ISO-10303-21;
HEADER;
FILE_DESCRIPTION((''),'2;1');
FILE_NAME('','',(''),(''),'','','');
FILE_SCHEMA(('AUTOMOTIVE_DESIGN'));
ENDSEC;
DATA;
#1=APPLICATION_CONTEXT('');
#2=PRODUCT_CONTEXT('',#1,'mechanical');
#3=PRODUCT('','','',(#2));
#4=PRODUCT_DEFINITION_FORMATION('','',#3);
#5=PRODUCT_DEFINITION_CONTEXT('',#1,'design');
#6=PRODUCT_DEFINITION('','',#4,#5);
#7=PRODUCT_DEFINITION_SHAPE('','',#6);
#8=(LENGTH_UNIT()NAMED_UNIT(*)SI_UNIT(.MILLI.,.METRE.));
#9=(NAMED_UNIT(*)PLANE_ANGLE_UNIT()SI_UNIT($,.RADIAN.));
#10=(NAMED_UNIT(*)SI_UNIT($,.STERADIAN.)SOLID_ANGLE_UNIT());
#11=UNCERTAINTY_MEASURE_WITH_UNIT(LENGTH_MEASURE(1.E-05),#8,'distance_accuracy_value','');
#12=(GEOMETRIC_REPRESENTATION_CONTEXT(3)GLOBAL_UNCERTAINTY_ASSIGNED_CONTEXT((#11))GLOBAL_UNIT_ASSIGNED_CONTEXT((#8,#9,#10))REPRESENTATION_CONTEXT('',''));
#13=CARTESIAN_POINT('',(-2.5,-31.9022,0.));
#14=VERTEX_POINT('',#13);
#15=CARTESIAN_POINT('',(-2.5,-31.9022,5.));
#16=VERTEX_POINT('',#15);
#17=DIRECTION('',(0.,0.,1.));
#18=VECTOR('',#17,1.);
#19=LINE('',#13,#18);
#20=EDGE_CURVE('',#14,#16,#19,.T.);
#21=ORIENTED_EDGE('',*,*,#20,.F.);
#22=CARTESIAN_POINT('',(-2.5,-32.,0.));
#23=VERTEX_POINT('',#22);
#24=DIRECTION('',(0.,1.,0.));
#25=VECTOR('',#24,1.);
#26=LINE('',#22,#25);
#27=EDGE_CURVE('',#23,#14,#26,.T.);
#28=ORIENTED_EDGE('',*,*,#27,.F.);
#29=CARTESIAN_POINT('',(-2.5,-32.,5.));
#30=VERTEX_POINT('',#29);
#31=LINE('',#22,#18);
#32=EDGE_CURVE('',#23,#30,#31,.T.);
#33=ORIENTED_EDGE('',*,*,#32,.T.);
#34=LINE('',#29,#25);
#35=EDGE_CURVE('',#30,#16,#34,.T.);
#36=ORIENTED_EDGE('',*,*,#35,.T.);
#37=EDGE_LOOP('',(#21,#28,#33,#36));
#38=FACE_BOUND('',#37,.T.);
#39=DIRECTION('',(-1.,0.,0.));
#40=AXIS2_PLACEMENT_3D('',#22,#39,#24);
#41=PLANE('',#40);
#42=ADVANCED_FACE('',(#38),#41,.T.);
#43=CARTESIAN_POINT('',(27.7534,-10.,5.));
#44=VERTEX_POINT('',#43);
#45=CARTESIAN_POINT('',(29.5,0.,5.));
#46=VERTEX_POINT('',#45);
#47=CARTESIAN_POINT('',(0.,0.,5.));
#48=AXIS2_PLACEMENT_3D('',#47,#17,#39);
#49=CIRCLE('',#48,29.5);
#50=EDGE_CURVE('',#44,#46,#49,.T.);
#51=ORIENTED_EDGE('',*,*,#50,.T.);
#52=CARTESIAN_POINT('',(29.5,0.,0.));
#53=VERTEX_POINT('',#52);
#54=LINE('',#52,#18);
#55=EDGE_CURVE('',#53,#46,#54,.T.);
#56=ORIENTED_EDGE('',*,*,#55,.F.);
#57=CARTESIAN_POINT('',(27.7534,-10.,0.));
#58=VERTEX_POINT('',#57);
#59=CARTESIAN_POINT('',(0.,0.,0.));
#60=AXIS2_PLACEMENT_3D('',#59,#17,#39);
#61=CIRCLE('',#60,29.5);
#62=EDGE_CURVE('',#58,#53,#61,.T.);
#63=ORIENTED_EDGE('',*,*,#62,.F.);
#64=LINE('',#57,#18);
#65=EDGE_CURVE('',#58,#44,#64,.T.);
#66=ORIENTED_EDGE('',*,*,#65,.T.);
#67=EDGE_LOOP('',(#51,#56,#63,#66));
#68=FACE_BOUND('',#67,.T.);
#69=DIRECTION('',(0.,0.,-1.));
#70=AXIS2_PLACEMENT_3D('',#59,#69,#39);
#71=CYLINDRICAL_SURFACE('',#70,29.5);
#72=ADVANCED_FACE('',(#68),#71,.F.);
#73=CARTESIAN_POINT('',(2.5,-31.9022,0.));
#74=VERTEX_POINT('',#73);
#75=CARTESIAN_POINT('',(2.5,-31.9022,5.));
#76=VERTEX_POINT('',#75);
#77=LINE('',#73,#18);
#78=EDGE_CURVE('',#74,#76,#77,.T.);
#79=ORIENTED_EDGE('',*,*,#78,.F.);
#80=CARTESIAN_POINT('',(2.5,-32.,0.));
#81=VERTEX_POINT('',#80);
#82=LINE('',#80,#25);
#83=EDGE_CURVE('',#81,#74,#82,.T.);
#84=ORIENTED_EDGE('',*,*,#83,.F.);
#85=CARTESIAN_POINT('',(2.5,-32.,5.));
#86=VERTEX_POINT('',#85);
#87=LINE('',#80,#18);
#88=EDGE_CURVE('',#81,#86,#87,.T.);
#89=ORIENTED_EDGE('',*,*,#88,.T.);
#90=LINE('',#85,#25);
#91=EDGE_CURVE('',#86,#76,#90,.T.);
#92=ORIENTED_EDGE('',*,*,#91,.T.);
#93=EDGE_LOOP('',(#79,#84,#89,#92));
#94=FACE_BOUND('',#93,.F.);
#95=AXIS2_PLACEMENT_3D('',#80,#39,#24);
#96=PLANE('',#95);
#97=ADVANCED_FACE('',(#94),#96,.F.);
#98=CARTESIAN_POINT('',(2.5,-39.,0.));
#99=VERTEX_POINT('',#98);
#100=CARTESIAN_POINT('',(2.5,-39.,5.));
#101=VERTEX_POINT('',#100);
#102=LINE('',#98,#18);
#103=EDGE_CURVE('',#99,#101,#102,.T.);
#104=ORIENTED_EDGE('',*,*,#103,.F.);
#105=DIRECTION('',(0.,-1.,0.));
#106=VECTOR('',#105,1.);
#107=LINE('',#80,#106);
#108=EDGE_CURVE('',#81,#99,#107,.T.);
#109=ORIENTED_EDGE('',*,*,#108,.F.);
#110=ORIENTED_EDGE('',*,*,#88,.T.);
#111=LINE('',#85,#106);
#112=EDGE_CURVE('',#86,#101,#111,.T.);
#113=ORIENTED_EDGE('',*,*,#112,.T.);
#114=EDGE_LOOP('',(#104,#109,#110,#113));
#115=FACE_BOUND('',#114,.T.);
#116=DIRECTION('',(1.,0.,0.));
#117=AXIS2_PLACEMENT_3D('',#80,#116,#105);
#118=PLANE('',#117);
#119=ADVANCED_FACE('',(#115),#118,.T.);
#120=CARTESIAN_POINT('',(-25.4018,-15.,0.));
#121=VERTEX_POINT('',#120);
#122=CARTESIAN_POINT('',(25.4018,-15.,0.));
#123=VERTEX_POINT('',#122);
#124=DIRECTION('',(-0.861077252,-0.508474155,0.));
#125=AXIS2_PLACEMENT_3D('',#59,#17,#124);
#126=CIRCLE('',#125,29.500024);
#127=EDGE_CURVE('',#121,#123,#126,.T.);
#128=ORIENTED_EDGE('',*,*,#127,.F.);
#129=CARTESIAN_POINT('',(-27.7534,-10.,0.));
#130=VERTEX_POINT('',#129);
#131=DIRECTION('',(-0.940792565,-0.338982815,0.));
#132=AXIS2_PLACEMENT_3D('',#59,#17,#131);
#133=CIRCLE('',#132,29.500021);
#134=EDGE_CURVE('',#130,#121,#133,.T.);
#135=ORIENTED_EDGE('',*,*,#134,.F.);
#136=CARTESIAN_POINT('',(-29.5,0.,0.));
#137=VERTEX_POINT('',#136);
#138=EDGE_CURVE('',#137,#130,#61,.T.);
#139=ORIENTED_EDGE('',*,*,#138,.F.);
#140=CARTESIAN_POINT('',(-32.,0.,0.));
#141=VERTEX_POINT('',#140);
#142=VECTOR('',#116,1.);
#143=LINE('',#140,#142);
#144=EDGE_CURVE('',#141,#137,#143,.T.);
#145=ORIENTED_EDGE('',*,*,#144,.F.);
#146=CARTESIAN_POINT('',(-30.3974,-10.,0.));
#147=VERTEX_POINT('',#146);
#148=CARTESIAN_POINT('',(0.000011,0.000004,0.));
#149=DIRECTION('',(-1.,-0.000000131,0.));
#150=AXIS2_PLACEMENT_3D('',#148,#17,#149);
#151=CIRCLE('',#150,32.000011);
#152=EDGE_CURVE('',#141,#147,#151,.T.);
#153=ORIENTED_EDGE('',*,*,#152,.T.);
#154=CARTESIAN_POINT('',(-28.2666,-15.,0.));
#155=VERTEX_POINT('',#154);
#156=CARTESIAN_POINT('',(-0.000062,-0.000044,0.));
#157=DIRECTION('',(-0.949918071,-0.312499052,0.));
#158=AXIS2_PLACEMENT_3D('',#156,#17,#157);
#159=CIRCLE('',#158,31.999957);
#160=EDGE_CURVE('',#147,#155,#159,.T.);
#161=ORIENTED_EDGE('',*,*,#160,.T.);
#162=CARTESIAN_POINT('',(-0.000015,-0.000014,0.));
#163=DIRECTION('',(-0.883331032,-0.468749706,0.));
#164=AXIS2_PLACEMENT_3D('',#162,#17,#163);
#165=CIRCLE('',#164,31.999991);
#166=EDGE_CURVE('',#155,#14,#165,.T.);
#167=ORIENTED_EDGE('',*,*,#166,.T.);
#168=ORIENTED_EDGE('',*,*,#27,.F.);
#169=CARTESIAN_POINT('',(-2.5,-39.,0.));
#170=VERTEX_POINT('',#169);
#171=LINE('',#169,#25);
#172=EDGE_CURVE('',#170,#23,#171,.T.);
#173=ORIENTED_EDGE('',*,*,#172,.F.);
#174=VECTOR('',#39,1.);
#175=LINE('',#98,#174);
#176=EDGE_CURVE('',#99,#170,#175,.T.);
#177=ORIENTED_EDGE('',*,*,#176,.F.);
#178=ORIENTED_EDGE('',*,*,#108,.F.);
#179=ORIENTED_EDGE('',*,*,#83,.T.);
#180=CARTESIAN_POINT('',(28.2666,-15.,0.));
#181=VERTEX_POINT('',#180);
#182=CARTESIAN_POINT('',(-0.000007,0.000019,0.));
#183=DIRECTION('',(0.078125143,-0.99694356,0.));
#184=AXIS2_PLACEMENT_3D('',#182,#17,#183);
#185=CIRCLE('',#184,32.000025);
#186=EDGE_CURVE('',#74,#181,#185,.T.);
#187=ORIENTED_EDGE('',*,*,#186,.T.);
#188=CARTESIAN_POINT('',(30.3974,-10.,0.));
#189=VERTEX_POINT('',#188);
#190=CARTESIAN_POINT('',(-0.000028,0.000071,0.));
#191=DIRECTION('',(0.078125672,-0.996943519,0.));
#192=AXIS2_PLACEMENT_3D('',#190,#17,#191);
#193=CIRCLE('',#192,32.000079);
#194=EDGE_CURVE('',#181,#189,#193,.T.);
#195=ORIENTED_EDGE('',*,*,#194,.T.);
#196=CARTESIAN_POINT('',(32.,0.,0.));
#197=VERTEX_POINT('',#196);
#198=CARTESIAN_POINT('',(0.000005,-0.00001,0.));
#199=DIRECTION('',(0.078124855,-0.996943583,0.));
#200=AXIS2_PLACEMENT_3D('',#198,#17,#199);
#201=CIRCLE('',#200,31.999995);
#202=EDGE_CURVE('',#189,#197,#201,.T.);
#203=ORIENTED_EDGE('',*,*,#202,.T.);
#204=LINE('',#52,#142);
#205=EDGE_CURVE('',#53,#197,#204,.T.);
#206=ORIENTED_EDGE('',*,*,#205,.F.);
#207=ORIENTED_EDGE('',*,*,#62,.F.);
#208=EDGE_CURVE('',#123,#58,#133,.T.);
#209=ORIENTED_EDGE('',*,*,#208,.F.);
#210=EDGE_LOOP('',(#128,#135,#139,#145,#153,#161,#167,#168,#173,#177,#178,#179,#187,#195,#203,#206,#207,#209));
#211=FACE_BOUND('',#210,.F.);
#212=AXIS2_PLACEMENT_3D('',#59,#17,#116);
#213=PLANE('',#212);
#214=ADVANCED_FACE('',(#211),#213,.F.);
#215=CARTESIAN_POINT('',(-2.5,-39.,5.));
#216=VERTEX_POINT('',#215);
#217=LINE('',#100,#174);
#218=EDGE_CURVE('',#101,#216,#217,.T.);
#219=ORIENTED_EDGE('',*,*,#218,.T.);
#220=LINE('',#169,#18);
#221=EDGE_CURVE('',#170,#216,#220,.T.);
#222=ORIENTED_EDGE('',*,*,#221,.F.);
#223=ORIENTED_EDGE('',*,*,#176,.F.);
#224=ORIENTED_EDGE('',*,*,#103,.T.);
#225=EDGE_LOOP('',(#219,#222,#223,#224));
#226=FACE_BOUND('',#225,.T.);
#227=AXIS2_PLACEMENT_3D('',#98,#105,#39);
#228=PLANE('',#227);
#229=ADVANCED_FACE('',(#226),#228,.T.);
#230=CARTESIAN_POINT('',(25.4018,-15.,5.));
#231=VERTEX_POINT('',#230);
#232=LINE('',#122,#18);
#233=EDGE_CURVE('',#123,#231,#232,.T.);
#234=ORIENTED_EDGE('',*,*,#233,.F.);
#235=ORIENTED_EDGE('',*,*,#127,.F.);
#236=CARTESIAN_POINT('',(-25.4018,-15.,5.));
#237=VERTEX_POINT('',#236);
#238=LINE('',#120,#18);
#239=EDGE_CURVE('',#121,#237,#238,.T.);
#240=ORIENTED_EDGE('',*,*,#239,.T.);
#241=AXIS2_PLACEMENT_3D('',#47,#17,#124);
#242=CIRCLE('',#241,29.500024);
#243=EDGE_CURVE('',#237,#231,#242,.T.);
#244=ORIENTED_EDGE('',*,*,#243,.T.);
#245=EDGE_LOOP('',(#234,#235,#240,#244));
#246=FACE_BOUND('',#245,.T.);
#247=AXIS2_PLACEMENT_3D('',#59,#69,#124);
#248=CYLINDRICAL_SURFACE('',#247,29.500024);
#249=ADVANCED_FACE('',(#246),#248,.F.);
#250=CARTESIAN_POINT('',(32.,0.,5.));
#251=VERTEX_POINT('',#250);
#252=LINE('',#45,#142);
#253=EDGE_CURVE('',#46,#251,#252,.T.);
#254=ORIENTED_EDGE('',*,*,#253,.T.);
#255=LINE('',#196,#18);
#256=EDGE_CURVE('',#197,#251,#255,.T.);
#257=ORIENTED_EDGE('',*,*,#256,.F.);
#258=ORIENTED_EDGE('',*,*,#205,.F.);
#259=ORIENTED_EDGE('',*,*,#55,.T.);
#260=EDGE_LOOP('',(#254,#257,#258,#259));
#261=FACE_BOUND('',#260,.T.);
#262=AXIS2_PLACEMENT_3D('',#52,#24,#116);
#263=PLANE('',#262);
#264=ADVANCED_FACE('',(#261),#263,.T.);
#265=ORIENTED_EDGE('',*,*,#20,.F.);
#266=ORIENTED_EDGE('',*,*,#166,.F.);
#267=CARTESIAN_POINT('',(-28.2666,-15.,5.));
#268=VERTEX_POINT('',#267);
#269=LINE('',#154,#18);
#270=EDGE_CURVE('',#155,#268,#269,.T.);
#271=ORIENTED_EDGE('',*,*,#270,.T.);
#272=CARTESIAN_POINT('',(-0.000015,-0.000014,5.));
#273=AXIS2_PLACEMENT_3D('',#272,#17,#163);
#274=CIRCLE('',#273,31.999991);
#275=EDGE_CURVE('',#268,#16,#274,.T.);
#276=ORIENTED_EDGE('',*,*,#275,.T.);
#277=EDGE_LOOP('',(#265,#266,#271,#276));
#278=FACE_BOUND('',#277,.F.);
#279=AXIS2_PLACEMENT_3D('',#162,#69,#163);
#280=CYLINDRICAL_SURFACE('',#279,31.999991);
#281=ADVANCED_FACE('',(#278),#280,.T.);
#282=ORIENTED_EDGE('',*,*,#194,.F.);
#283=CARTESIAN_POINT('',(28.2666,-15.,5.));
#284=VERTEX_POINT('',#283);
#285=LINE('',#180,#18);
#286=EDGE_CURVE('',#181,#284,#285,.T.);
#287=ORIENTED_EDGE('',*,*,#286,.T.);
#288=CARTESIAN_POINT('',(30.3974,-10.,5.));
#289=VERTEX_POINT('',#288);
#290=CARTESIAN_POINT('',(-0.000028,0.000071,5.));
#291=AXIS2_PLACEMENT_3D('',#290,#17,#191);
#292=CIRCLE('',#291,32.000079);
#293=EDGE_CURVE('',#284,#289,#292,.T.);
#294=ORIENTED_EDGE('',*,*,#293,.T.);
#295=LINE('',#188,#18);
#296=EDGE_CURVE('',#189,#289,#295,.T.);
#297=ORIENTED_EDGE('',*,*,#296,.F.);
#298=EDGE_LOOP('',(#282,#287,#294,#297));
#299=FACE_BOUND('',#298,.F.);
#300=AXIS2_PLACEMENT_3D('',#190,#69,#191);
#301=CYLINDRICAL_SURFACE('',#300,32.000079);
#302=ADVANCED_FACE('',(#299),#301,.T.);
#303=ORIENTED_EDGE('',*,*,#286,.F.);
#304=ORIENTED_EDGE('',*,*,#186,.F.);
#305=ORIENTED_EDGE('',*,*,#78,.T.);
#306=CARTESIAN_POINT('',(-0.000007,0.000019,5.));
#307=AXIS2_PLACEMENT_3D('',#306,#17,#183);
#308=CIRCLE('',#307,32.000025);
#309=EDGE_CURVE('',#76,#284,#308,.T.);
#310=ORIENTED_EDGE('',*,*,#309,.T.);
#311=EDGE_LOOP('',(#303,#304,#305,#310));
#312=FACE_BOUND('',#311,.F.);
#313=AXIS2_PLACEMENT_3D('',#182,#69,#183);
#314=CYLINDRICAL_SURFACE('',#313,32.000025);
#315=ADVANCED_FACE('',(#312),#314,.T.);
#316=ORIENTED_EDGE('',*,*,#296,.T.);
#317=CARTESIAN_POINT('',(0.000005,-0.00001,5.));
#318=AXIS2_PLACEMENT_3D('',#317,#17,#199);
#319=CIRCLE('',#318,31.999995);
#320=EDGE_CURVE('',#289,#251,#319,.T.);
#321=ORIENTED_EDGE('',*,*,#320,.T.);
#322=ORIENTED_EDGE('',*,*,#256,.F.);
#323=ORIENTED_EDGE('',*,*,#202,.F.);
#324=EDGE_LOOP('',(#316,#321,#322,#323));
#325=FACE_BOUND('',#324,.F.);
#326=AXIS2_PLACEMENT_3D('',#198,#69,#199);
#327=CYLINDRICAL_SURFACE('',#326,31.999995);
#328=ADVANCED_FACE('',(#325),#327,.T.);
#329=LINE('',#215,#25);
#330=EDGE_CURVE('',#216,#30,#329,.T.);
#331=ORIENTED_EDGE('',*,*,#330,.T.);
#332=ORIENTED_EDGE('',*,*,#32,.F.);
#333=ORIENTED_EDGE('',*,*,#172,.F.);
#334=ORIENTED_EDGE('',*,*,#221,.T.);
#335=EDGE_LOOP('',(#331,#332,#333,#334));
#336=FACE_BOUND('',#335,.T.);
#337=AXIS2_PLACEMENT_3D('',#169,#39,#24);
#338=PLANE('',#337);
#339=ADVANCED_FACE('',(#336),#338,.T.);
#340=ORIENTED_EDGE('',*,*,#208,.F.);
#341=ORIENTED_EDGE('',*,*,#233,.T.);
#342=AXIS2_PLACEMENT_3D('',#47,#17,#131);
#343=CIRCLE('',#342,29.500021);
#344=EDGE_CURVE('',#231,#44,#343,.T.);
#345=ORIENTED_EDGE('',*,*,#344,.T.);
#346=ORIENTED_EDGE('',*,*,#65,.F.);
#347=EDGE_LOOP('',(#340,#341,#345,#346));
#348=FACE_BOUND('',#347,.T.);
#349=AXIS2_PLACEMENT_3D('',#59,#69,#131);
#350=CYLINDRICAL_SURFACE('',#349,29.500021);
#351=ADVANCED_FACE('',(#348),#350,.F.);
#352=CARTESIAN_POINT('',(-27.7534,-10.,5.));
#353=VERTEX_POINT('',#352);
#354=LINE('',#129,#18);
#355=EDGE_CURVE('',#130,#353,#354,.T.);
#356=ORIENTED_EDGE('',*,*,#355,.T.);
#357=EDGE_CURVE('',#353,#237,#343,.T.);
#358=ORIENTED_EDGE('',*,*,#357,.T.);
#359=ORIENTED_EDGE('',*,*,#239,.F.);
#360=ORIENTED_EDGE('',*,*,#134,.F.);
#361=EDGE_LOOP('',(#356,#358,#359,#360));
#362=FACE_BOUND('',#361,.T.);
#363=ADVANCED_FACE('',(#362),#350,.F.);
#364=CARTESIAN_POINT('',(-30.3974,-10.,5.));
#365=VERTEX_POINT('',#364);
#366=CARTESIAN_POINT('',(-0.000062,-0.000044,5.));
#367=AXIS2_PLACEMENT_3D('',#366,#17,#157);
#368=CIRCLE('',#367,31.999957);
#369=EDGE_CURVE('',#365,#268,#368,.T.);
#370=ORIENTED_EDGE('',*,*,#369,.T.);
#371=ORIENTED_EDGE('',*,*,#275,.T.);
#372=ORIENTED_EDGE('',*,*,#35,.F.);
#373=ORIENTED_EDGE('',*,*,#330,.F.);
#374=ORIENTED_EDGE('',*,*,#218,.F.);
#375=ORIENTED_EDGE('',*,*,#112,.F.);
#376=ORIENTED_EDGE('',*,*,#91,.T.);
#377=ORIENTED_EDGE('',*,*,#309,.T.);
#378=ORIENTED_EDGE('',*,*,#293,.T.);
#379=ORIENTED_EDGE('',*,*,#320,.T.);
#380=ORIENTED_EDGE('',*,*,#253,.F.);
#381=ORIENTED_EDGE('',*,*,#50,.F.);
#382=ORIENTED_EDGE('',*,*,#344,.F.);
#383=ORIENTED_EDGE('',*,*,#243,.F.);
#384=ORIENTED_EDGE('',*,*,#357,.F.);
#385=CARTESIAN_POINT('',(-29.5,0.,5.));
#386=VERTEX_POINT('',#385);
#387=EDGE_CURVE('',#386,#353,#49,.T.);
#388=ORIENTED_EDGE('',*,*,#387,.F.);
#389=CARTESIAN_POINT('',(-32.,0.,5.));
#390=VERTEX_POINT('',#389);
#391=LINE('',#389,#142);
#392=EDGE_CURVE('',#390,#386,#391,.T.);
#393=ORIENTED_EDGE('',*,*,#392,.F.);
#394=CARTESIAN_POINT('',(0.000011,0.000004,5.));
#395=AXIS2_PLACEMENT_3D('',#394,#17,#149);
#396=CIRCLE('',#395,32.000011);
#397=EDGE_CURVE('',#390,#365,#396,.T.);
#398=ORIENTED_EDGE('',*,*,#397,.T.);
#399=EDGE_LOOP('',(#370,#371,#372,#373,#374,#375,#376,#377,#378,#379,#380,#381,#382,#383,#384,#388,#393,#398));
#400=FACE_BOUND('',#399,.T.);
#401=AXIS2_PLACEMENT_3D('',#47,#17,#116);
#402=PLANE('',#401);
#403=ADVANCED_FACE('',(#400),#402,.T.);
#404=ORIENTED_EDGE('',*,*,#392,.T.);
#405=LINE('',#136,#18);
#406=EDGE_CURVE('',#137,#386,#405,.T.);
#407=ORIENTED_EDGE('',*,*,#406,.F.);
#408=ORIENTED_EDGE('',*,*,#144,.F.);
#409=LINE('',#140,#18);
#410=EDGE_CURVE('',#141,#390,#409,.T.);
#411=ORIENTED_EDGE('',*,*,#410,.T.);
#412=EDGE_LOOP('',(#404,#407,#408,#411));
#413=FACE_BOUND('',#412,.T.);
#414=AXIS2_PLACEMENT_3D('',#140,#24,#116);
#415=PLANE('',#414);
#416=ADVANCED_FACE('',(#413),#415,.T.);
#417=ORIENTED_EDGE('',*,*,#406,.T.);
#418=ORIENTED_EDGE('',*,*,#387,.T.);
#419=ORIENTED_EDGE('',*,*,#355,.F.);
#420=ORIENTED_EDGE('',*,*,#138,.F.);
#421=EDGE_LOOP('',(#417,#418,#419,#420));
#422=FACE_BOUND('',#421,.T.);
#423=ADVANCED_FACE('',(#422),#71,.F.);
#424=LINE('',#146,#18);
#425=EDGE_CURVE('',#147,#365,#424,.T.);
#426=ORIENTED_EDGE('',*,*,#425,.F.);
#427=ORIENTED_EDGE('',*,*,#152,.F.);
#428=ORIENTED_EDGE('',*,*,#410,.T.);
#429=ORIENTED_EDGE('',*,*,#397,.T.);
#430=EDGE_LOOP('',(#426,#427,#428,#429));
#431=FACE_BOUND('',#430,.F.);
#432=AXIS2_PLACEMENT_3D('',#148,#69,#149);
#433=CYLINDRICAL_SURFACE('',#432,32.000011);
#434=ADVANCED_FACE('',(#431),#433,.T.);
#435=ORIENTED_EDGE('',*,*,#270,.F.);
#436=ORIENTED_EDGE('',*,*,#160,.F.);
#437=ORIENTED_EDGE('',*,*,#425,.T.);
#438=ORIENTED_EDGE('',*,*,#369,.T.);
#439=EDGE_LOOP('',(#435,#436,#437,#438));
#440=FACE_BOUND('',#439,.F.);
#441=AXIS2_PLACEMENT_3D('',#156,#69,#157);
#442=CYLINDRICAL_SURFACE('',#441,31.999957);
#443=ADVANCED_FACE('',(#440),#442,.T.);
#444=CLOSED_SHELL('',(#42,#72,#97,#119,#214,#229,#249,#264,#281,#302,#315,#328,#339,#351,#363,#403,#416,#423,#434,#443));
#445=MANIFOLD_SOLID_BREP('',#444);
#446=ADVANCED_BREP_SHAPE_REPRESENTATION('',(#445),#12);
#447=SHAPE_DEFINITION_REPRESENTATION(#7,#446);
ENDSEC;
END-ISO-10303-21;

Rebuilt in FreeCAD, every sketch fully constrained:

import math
import FreeCAD as App
import Part
import Sketcher

V = App.Vector

doc = App.newDocument("Part")
body = doc.addObject("PartDesign::Body", "Body")

sketch1 = body.newObject("Sketcher::SketchObject", "Sketch")
sketch1.AttachmentSupport = (doc.getObject("XY_Plane"), [""])
sketch1.MapMode = "FlatFace"
sketch1.addGeometry(Part.ArcOfCircle(Part.Circle(V(0, 0, 0), V(0, 0, 1), 29.5), math.radians(180), math.radians(360)), False)
sketch1.addGeometry(Part.LineSegment(V(-29.5, 0, 0), V(-32, 0, 0)), False)
sketch1.addGeometry(Part.ArcOfCircle(Part.Circle(V(0, 0, 0), V(0, 0, 1), 32), math.radians(180), math.radians(198.21)), False)
sketch1.addGeometry(Part.ArcOfCircle(Part.Circle(V(0, 0, 0), V(0, 0, 1), 32), math.radians(-161.79), math.radians(-152.05)), False)
sketch1.addGeometry(Part.ArcOfCircle(Part.Circle(V(0, 0, 0), V(0, 0, 1), 32), math.radians(-152), math.radians(-94)), False)
sketch1.addGeometry(Part.LineSegment(V(-2.5, -31.9, 0), V(-2.5, -39, 0)), False)
sketch1.addGeometry(Part.LineSegment(V(-2.5, -39, 0), V(2.5, -39, 0)), False)
sketch1.addGeometry(Part.LineSegment(V(2.5, -39, 0), V(2.5, -31.9, 0)), False)
sketch1.addGeometry(Part.ArcOfCircle(Part.Circle(V(0, 0, 0), V(0, 0, 1), 32), math.radians(-86), math.radians(-28)), False)
sketch1.addGeometry(Part.ArcOfCircle(Part.Circle(V(0, 0, 0), V(0, 0, 1), 32), math.radians(-27.95), math.radians(-18.21)), False)
sketch1.addGeometry(Part.ArcOfCircle(Part.Circle(V(0, 0, 0), V(0, 0, 1), 32), math.radians(-18.21), math.radians(0)), False)
sketch1.addGeometry(Part.LineSegment(V(32, 0, 0), V(29.5, 0, 0)), False)
sketch1.addConstraint(Sketcher.Constraint("Coincident", 0, 1, 1, 1))
sketch1.addConstraint(Sketcher.Constraint("Coincident", 1, 2, 2, 1))
sketch1.addConstraint(Sketcher.Constraint("Tangent", 2, 2, 3, 1))
sketch1.addConstraint(Sketcher.Constraint("Tangent", 3, 2, 4, 1))
sketch1.addConstraint(Sketcher.Constraint("Coincident", 4, 2, 5, 1))
sketch1.addConstraint(Sketcher.Constraint("Coincident", 5, 2, 6, 1))
sketch1.addConstraint(Sketcher.Constraint("Coincident", 6, 2, 7, 1))
sketch1.addConstraint(Sketcher.Constraint("Coincident", 7, 2, 8, 1))
sketch1.addConstraint(Sketcher.Constraint("Tangent", 8, 2, 9, 1))
sketch1.addConstraint(Sketcher.Constraint("Tangent", 9, 2, 10, 1))
sketch1.addConstraint(Sketcher.Constraint("Coincident", 10, 2, 11, 1))
sketch1.addConstraint(Sketcher.Constraint("Coincident", 11, 2, 0, 2))
sketch1.addConstraint(Sketcher.Constraint("Horizontal", 1))
sketch1.addConstraint(Sketcher.Constraint("Vertical", 5))
sketch1.addConstraint(Sketcher.Constraint("Horizontal", 6))
sketch1.addConstraint(Sketcher.Constraint("Vertical", 7))
sketch1.addConstraint(Sketcher.Constraint("Horizontal", 11))
sketch1.addConstraint(Sketcher.Constraint("Coincident", 0, 3, -1, 1))
sketch1.addConstraint(Sketcher.Constraint("Coincident", 2, 3, -1, 1))
sketch1.addConstraint(Sketcher.Constraint("Coincident", 4, 3, -1, 1))
sketch1.addConstraint(Sketcher.Constraint("Coincident", 8, 3, -1, 1))
sketch1.addConstraint(Sketcher.Constraint("Coincident", 10, 3, -1, 1))
sketch1.addConstraint(Sketcher.Constraint("Equal", 4, 8))
sketch1.addConstraint(Sketcher.Constraint("PointOnObject", 0, 1, -1))
sketch1.addConstraint(Sketcher.Constraint("PointOnObject", 10, 2, -1))
sketch1.addConstraint(Sketcher.Constraint("Horizontal", 4, 2, 7, 2))
sketch1.addConstraint(Sketcher.Constraint("Horizontal", 3, 2, 8, 2))
sketch1.addConstraint(Sketcher.Constraint("Horizontal", 2, 2, 9, 2))
sketch1.addConstraint(Sketcher.Constraint("DistanceX", 6, 1, 6, 2, 5.0))
sketch1.addConstraint(Sketcher.Constraint("Radius", 2, 32.0))
sketch1.addConstraint(Sketcher.Constraint("DistanceY", 3, 2, 2, 2, 5.0))
sketch1.addConstraint(Sketcher.Constraint("Radius", 0, 29.5))
sketch1.addConstraint(Sketcher.Constraint("DistanceY", 2, 2, -1, 1, 10.0))
sketch1.addConstraint(Sketcher.Constraint("DistanceY", 5, 2, -1, 1, 39.0))
pad1 = body.newObject("PartDesign::Pad", "Pad")
pad1.Profile = sketch1
pad1.Length = 5

doc.recompute()
